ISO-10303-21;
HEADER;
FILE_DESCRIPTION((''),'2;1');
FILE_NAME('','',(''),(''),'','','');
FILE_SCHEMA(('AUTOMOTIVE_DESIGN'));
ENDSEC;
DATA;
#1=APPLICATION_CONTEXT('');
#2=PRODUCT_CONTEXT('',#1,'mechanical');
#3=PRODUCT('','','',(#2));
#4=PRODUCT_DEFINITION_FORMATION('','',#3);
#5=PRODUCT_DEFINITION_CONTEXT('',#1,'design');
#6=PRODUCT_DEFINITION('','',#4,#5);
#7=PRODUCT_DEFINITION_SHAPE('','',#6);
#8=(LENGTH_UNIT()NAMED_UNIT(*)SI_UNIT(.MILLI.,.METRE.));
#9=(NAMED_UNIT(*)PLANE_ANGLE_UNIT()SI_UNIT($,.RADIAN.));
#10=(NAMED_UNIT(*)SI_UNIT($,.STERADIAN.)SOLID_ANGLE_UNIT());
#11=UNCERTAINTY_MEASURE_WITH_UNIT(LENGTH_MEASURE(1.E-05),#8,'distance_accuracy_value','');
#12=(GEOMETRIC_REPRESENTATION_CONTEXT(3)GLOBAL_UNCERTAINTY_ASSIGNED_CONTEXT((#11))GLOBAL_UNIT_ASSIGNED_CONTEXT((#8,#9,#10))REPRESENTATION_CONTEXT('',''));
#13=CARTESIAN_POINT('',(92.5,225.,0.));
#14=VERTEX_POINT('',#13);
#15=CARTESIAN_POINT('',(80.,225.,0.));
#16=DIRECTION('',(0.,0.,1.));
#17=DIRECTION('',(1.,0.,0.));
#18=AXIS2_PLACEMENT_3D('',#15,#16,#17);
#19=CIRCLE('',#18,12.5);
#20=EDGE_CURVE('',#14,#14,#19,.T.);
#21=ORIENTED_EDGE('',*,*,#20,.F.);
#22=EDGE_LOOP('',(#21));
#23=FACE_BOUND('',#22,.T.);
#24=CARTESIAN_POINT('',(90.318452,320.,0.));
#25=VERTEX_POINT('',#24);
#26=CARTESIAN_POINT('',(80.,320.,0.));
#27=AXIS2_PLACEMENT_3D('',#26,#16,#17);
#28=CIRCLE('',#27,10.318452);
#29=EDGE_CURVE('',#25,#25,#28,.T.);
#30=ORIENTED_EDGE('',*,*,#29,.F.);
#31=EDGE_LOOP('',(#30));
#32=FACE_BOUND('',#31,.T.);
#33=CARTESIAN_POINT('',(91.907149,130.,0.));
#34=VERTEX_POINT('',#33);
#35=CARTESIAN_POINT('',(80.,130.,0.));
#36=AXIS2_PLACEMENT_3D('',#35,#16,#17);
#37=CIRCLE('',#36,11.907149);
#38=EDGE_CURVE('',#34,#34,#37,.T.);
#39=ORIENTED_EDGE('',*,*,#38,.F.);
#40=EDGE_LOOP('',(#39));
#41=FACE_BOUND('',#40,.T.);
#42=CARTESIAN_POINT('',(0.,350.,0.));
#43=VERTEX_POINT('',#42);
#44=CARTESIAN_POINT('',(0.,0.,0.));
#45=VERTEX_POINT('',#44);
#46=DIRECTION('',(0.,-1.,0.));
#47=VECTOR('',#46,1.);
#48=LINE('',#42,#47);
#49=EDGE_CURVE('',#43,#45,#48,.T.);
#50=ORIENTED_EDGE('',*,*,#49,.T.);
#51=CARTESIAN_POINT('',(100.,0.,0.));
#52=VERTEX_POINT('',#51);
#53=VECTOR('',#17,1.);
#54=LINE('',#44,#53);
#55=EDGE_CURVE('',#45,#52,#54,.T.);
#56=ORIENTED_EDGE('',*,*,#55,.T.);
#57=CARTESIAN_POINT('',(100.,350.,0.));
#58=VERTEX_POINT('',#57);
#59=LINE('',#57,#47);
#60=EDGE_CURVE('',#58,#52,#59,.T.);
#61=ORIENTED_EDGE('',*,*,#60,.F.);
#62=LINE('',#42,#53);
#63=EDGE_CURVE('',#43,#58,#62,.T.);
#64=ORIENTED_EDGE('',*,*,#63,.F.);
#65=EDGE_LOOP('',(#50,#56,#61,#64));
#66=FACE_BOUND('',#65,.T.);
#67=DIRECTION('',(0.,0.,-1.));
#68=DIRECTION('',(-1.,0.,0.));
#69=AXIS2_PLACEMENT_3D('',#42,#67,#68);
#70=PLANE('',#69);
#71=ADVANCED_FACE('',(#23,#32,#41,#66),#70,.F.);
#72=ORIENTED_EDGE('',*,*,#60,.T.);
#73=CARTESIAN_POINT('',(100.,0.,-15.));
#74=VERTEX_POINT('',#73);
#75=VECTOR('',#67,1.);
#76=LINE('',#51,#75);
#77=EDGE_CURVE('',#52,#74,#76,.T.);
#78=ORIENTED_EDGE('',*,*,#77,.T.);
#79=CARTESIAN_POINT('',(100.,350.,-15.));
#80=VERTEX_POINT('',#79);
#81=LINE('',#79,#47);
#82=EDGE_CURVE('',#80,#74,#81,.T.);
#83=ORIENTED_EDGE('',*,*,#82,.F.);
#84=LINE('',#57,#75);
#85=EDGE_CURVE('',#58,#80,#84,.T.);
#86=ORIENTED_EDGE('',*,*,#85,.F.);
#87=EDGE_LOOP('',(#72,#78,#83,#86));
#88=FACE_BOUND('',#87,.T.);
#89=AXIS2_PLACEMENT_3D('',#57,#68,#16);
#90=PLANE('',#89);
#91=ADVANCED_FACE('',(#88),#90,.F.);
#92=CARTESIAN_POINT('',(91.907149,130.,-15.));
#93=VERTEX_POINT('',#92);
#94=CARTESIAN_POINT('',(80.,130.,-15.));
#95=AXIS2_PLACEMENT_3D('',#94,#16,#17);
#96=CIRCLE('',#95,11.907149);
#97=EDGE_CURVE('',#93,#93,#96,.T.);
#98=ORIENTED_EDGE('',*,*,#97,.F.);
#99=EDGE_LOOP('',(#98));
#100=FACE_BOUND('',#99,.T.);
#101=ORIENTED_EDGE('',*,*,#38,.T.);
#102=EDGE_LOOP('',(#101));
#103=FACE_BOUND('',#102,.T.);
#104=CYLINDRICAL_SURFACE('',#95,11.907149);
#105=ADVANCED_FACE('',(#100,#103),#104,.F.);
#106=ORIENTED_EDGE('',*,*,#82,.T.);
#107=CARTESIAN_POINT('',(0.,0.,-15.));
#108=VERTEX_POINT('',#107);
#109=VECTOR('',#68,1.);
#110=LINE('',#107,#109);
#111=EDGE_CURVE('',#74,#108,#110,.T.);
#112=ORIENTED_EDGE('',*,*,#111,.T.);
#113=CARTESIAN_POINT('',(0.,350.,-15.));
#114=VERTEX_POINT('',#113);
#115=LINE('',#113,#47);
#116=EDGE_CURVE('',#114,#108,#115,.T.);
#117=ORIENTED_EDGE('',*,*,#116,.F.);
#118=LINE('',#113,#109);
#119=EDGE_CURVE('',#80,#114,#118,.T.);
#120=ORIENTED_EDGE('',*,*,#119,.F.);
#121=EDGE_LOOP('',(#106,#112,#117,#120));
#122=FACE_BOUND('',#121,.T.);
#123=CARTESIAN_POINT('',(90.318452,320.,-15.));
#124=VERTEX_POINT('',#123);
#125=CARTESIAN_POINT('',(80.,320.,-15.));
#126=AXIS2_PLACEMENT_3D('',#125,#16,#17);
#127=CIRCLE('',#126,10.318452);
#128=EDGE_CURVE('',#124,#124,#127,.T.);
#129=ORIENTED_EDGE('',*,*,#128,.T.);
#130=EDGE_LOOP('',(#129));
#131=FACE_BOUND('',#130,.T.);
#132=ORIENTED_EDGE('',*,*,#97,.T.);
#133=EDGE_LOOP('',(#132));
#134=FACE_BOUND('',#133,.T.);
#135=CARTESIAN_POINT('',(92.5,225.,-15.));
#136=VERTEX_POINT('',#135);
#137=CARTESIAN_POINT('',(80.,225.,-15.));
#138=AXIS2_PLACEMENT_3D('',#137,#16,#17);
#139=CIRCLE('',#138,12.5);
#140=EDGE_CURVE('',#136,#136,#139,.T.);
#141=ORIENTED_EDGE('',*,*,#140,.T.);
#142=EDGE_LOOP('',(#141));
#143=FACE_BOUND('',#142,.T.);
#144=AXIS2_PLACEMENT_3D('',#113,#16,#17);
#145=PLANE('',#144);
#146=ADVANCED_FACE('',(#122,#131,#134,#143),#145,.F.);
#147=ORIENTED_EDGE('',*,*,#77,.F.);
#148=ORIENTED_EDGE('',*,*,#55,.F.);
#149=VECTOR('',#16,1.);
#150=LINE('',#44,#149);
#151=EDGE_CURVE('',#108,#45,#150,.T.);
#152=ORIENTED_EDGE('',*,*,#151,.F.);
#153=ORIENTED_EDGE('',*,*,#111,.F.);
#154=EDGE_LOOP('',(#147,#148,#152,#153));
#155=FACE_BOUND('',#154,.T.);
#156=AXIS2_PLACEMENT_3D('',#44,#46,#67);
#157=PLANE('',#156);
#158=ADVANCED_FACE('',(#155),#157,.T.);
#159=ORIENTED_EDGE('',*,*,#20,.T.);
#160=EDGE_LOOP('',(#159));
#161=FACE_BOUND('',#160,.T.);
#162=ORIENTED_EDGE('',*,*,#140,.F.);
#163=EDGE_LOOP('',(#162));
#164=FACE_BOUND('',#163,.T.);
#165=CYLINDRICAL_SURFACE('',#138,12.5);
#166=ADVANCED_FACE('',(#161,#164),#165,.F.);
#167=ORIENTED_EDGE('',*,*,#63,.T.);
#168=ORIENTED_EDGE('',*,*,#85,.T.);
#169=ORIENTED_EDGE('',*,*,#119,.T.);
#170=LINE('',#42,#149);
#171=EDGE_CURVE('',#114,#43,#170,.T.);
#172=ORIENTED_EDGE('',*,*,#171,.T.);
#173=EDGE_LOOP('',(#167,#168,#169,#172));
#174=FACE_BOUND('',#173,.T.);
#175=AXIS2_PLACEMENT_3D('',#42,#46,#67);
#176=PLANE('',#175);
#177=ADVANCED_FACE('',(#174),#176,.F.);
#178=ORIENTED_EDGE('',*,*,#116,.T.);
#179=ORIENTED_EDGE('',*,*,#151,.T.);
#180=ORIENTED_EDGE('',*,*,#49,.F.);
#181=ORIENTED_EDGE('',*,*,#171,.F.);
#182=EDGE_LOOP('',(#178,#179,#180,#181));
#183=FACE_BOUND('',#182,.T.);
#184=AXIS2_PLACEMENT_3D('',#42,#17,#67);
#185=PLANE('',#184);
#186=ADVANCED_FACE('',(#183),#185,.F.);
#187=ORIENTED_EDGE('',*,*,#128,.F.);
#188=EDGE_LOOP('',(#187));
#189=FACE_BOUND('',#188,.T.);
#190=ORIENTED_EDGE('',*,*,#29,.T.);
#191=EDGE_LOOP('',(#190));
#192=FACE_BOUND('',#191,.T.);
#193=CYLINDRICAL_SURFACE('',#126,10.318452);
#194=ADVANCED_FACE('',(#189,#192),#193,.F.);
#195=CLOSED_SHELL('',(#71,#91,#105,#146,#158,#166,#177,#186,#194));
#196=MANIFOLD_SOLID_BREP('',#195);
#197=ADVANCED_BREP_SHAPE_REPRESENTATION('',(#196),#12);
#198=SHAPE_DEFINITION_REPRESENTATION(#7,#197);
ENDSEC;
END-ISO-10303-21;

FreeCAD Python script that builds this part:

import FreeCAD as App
import Part
import Sketcher
from FreeCAD import Vector


def add_polygon(sketch, points):
    """Adds a closed chain of lines whose ends are joined by coincident constraints."""
    first, n = sketch.GeometryCount, len(points)
    for a, b in zip(points, points[1:] + points[:1]):
        sketch.addGeometry(Part.LineSegment(App.Vector(*a, 0), App.Vector(*b, 0)), False)
    for i in range(n):
        sketch.addConstraint(Sketcher.Constraint("Coincident", first + i, 2, first + (i + 1) % n, 1))

doc = App.newDocument("Part")
params = doc.addObject("Spreadsheet::Sheet", "Params")
for row, (alias, value) in enumerate([
    ("sketch1_width", "100 mm"),
    ("sketch1_height", "15 mm"),
    ("pad1_length", "350 mm"),
    ("sketch2_diameter", "25 mm"),
], start=1):
    params.set(f"A{row}", alias)
    params.set(f"B{row}", "=" + value)
    params.setAlias(f"B{row}", alias)

body = doc.addObject("PartDesign::Body", "Body")

sketch1 = body.newObject("Sketcher::SketchObject", "Sketch")
sketch1.AttachmentSupport = (doc.getObject("XZ_Plane"), [""])
sketch1.MapMode = "FlatFace"
add_polygon(sketch1, [(0, -15), (0, 0), (100, 0), (100, -15)])
sketch1.addConstraint(Sketcher.Constraint("Vertical", 0))
sketch1.addConstraint(Sketcher.Constraint("Horizontal", 1))
sketch1.addConstraint(Sketcher.Constraint("Vertical", 2))
sketch1.addConstraint(Sketcher.Constraint("Horizontal", 3))
sketch1.addConstraint(Sketcher.Constraint("Coincident", 0, 2, -1, 1))
sketch1.addConstraint(Sketcher.Constraint("DistanceX", 1, 1, 1, 2, 100.0))
sketch1.addConstraint(Sketcher.Constraint("DistanceY", 0, 1, 0, 2, 15.0))
sketch1.setExpression("Constraints[9]", "Params.sketch1_width")
sketch1.setExpression("Constraints[10]", "Params.sketch1_height")
pad1 = body.newObject("PartDesign::Pad", "Pad")
pad1.Profile = sketch1
pad1.setExpression("Length", "Params.pad1_length")
pad1.Reversed = True

sketch2 = body.newObject("Sketcher::SketchObject", "Sketch001")
sketch2.AttachmentSupport = (doc.getObject("XY_Plane"), [""])
sketch2.MapMode = "FlatFace"
sketch2.addGeometry(Part.Circle(Vector(80, 225, 0), Vector(0, 0, 1), 12), False)
sketch2.addConstraint(Sketcher.Constraint("Diameter", 0, 25.0))
sketch2.addConstraint(Sketcher.Constraint("DistanceX", -1, 1, 0, 3, 80.0))
sketch2.addConstraint(Sketcher.Constraint("DistanceY", -1, 1, 0, 3, 225.0))
sketch2.setExpression("Constraints[0]", "Params.sketch2_diameter")
pocket1 = body.newObject("PartDesign::Pocket", "Pocket")
pocket1.Profile = sketch2
pocket1.Type = "ThroughAll"

sketch3 = body.newObject("Sketcher::SketchObject", "Sketch002")
sketch3.AttachmentSupport = (doc.getObject("XY_Plane"), [""])
sketch3.MapMode = "FlatFace"
sketch3.addGeometry(Part.Circle(Vector(80, 320, 0), Vector(0, 0, 1), 10), False)
sketch3.addGeometry(Part.Circle(Vector(80, 130, 0), Vector(0, 0, 1), 12), False)
sketch3.addConstraint(Sketcher.Constraint("Vertical", 0, 3, 1, 3))
sketch3.addConstraint(Sketcher.Constraint("DistanceX", -1, 1, 0, 3, 80.0))
sketch3.addConstraint(Sketcher.Constraint("DistanceY", -1, 1, 0, 3, 320.0))
sketch3.addConstraint(Sketcher.Constraint("DistanceY", -1, 1, 1, 3, 130.0))
sketch3.addConstraint(Sketcher.Constraint("Diameter", 0, 20.636904))
sketch3.addConstraint(Sketcher.Constraint("Diameter", 1, 23.814298))
pocket2 = body.newObject("PartDesign::Pocket", "Pocket001")
pocket2.Profile = sketch3
pocket2.Type = "ThroughAll"

doc.recompute()
